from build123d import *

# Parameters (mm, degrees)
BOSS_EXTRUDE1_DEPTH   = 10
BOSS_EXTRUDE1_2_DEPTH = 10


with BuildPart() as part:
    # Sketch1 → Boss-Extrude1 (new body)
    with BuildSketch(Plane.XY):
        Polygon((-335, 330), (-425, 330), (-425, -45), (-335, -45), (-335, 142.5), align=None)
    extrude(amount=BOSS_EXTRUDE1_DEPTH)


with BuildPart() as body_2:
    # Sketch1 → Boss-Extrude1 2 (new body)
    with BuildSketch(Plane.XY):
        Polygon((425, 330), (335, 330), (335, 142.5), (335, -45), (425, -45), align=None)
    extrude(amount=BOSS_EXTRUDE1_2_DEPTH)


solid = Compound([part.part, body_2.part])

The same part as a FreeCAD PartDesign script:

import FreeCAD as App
import Part
import Sketcher
from FreeCAD import Vector
Q = App.Units.Quantity


def add_polygon(sketch, points):
    """Adds a closed chain of lines whose ends are joined by coincident constraints."""
    first, n = sketch.GeometryCount, len(points)
    for a, b in zip(points, points[1:] + points[:1]):
        sketch.addGeometry(Part.LineSegment(App.Vector(*a, 0), App.Vector(*b, 0)), False)
    for i in range(n):
        sketch.addConstraint(Sketcher.Constraint("Coincident", first + i, 2, first + (i + 1) % n, 1))

doc = App.newDocument("Part")
body = doc.addObject("PartDesign::Body", "Body")

# Sketch on XY plane
sketch1 = doc.addObject("Sketcher::SketchObject", "Sketch")
body.addObject(sketch1)
sketch1.AttachmentSupport = (doc.XY_Plane, [""])
sketch1.MapMode = "FlatFace"
add_polygon(sketch1, [(-335, 330), (-425, 330), (-425, -45), (-335, -45)])  # lines 0-3
sketch1.addConstraint([
    Sketcher.Constraint("Horizontal", 0),
    Sketcher.Constraint("Vertical", 1),
    Sketcher.Constraint("Horizontal", 2),
    Sketcher.Constraint("Vertical", 3),
    Sketcher.Constraint("DistanceX", 0, 2, 0, 1, Q("90 mm")),
    Sketcher.Constraint("DistanceY", 1, 2, 1, 1, Q("375 mm")),
    Sketcher.Constraint("DistanceX", 0, 2, -1, 1, Q("425 mm")),
    Sketcher.Constraint("DistanceY", -1, 1, 0, 2, Q("330 mm")),
])
pad1 = doc.addObject("PartDesign::Pad", "Pad")
body.addObject(pad1)
pad1.Profile = sketch1
pad1.Length = 10
body2 = doc.addObject("PartDesign::Body", "Body001")

# Sketch on XY plane
sketch2 = doc.addObject("Sketcher::SketchObject", "Sketch001")
body2.addObject(sketch2)
sketch2.AttachmentSupport = (doc.getObject("XY_Plane001"), [""])
sketch2.MapMode = "FlatFace"
add_polygon(sketch2, [(425, 330), (335, 330), (335, -45), (425, -45)])  # lines 0-3
sketch2.addConstraint([
    Sketcher.Constraint("Horizontal", 0),
    Sketcher.Constraint("Vertical", 1),
    Sketcher.Constraint("Horizontal", 2),
    Sketcher.Constraint("Vertical", 3),
    Sketcher.Constraint("DistanceX", 0, 2, 0, 1, Q("90 mm")),
    Sketcher.Constraint("DistanceY", 1, 2, 1, 1, Q("375 mm")),
    Sketcher.Constraint("DistanceX", -1, 1, 0, 2, Q("335 mm")),
    Sketcher.Constraint("DistanceY", -1, 1, 0, 2, Q("330 mm")),
])
pad2 = doc.addObject("PartDesign::Pad", "Pad001")
body2.addObject(pad2)
pad2.Profile = sketch2
pad2.Length = 10

doc.recompute()
